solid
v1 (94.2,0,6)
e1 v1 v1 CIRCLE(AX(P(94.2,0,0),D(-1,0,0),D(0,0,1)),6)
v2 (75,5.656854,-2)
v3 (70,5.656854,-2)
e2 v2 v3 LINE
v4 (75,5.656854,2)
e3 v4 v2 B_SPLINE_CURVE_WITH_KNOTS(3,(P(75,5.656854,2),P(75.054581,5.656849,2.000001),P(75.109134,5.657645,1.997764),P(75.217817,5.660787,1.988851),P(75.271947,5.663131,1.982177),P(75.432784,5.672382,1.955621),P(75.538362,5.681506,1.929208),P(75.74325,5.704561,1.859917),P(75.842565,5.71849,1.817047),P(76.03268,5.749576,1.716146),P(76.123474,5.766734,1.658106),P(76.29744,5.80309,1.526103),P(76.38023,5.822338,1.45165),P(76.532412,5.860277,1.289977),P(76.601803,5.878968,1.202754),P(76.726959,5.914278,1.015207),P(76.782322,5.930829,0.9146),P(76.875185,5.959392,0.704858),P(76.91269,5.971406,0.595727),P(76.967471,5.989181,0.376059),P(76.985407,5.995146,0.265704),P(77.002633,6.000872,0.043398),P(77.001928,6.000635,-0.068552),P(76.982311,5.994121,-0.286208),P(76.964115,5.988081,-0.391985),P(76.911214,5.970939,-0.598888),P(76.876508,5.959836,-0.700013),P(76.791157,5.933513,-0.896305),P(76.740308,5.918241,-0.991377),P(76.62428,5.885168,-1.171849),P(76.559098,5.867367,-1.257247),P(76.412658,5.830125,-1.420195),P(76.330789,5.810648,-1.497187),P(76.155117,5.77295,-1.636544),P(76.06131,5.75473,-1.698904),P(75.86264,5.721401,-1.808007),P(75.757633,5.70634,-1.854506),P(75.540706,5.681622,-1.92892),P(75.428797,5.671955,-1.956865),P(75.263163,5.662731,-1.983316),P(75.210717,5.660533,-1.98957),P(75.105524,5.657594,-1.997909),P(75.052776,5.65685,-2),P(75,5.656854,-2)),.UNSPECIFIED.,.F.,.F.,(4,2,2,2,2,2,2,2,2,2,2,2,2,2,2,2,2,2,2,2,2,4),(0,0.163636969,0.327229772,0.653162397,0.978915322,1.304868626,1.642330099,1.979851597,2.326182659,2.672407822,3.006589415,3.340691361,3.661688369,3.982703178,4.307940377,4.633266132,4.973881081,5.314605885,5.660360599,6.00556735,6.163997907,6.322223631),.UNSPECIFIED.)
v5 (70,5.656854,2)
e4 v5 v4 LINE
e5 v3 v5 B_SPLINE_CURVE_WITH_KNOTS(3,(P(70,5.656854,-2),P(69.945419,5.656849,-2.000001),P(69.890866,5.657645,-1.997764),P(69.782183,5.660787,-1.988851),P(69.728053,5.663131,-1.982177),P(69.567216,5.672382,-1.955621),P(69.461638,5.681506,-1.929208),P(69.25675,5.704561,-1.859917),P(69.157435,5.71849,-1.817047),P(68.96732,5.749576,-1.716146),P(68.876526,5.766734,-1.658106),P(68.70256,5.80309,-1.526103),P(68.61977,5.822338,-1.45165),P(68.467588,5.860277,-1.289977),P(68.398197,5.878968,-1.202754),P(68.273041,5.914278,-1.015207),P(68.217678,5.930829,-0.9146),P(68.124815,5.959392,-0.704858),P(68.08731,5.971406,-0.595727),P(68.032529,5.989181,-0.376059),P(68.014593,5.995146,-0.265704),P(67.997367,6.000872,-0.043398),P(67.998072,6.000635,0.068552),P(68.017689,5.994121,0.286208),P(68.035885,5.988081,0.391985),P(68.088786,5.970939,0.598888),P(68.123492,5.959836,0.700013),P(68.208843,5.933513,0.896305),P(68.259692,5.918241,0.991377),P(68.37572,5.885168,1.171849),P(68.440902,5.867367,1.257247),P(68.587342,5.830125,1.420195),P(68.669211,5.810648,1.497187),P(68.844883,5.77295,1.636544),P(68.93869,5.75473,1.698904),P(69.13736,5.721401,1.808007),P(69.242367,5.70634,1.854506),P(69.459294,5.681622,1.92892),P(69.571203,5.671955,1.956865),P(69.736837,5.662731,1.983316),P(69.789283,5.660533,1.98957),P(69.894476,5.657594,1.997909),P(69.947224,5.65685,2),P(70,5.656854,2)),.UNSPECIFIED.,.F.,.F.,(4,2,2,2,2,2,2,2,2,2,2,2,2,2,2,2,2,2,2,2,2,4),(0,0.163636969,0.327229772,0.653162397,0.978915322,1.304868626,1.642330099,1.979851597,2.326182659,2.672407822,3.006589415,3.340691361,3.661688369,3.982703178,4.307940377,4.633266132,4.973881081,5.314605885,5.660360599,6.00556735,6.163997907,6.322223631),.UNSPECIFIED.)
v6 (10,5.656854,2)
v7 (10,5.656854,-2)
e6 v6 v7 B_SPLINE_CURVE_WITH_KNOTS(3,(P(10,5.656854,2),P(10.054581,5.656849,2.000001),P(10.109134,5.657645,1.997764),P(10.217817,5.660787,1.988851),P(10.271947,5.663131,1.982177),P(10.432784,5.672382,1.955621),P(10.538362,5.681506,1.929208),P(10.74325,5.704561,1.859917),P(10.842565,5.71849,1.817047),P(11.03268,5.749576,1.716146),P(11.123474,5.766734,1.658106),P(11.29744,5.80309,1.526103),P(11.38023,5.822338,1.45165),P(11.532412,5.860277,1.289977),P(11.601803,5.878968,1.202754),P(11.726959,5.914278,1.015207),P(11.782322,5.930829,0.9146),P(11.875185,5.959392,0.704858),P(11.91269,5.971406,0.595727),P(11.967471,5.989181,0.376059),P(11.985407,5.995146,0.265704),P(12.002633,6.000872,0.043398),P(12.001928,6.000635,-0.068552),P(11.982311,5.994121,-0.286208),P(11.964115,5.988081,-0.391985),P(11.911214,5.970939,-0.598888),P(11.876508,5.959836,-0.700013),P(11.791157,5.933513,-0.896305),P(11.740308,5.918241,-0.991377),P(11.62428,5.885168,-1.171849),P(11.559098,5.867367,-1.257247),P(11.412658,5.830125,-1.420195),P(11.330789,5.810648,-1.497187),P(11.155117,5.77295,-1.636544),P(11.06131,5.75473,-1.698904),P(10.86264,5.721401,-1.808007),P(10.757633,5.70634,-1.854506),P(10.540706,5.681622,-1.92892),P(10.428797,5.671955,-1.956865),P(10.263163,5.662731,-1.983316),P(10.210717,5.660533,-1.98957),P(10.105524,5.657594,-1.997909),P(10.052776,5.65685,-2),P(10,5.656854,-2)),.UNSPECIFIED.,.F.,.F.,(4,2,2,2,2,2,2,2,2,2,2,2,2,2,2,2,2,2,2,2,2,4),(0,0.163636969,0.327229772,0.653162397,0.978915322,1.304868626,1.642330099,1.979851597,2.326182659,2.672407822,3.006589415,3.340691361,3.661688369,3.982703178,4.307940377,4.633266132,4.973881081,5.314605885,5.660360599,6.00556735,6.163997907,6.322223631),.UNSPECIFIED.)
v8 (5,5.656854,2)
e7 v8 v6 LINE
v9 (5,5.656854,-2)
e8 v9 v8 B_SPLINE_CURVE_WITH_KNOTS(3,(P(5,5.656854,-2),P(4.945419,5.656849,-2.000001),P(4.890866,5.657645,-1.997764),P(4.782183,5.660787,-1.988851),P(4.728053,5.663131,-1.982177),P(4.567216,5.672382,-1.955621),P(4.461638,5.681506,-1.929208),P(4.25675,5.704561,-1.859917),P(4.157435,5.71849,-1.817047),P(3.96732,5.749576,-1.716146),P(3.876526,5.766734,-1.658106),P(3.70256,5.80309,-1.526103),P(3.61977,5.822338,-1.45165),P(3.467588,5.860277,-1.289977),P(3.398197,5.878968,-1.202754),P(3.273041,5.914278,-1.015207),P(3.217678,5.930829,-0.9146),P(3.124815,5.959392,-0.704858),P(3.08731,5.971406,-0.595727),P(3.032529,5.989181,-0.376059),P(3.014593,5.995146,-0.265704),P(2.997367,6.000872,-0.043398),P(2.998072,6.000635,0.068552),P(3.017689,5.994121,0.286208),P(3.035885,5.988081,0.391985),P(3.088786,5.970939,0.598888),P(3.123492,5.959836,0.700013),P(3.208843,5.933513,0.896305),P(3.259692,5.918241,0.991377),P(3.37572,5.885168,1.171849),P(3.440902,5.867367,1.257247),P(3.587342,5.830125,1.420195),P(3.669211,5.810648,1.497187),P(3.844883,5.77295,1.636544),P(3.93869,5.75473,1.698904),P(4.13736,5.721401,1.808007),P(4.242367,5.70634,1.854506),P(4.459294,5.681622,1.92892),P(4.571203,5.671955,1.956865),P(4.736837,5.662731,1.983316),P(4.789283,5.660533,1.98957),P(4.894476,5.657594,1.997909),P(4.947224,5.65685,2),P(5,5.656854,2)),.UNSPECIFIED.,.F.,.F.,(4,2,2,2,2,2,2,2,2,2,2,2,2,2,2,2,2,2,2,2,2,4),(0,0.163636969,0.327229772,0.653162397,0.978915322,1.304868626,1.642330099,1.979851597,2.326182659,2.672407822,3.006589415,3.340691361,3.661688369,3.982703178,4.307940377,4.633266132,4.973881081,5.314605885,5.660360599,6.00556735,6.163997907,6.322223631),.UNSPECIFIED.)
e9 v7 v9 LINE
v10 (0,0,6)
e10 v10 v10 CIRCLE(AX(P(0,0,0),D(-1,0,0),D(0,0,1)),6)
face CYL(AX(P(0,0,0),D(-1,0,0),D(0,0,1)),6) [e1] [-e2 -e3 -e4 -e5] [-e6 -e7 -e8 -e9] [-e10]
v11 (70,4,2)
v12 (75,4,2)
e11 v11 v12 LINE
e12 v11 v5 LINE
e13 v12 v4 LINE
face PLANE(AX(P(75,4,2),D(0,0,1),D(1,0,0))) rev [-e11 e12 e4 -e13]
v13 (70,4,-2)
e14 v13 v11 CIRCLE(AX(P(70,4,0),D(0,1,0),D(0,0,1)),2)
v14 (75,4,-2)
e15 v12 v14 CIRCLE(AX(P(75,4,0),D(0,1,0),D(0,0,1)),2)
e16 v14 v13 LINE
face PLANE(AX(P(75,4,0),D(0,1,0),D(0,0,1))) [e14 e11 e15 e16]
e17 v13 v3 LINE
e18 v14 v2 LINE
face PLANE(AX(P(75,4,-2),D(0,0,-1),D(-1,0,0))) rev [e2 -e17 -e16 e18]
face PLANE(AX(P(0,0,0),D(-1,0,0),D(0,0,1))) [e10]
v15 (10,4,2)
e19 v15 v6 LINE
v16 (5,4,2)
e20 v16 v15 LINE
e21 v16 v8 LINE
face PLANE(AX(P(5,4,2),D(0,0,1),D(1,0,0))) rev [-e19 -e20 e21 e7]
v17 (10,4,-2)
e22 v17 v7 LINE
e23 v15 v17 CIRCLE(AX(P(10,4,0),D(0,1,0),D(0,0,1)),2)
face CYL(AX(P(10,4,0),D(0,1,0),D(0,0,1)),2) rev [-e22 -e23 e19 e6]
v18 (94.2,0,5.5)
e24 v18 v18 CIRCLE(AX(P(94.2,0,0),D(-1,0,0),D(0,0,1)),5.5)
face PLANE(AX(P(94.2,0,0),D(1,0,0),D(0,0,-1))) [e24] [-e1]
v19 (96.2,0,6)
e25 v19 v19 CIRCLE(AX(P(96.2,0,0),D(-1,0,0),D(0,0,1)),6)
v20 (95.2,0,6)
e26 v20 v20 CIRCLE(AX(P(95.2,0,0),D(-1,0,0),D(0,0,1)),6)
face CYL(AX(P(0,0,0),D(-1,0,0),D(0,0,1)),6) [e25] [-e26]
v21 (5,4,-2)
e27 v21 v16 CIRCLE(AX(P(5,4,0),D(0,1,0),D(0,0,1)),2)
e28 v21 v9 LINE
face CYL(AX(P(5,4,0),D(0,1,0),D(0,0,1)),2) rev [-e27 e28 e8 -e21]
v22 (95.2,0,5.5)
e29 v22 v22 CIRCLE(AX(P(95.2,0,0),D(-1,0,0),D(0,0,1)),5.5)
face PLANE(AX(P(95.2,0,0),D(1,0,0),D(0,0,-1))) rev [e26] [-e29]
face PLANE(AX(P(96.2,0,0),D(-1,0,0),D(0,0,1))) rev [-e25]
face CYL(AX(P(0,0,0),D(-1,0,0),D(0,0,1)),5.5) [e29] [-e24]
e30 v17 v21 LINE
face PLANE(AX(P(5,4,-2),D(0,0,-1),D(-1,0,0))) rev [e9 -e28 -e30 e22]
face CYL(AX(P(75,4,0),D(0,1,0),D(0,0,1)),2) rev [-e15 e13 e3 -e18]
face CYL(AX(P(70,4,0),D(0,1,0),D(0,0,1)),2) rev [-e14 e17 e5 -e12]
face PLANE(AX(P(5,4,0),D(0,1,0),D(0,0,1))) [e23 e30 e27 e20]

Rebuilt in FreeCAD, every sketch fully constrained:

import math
import FreeCAD as App
import Part
import Sketcher

V = App.Vector


def add_polygon(sketch, points):
    """Adds a closed chain of lines whose ends are joined by coincident constraints."""
    first, n = sketch.GeometryCount, len(points)
    for a, b in zip(points, points[1:] + points[:1]):
        sketch.addGeometry(Part.LineSegment(App.Vector(*a, 0), App.Vector(*b, 0)), False)
    for i in range(n):
        sketch.addConstraint(Sketcher.Constraint("Coincident", first + i, 2, first + (i + 1) % n, 1))

doc = App.newDocument("Part")
body = doc.addObject("PartDesign::Body", "Body")

# Sketch on XY plane
sketch1 = doc.addObject("Sketcher::SketchObject", "Sketch")
body.addObject(sketch1)
sketch1.AttachmentSupport = (doc.XY_Plane, [""])
sketch1.MapMode = "FlatFace"
add_polygon(sketch1, [(0, 6), (0, 0), (96.2, 0), (96.2, 6), (95.2, 6), (95.2, 5.5), (94.2, 5.5), (94.2, 6)])  # lines 0-7
sketch1.addConstraint(Sketcher.Constraint("Vertical", 0))
sketch1.addConstraint(Sketcher.Constraint("Horizontal", 1))
sketch1.addConstraint(Sketcher.Constraint("Vertical", 2))
sketch1.addConstraint(Sketcher.Constraint("Horizontal", 3))
sketch1.addConstraint(Sketcher.Constraint("Vertical", 4))
sketch1.addConstraint(Sketcher.Constraint("Horizontal", 5))
sketch1.addConstraint(Sketcher.Constraint("Vertical", 6))
sketch1.addConstraint(Sketcher.Constraint("Horizontal", 7))
sketch1.addConstraint(Sketcher.Constraint("Coincident", 0, 2, -1, 1))
sketch1.addConstraint(Sketcher.Constraint("Horizontal", 3, 2, 6, 2))
sketch1.addConstraint(Sketcher.Constraint("Equal", 3, 5))
sketch1.addConstraint(Sketcher.Constraint("DistanceX", 3, 2, 3, 1, 1.0))
sketch1.addConstraint(Sketcher.Constraint("DistanceY", 0, 2, 0, 1, 6.0))
sketch1.addConstraint(Sketcher.Constraint("DistanceX", 1, 1, 1, 2, 96.2))
sketch1.addConstraint(Sketcher.Constraint("DistanceY", 4, 2, 4, 1, 0.5))
revolution = doc.addObject("PartDesign::Revolution", "Revolution")
body.addObject(revolution)
revolution.Profile = sketch1
revolution.ReferenceAxis = (sketch1, ["H_Axis"])
revolution.Angle = 360

# Sketch on XZ plane
sketch2 = doc.addObject("Sketcher::SketchObject", "Sketch001")
body.addObject(sketch2)
sketch2.AttachmentSupport = (doc.XZ_Plane, [""])
sketch2.MapMode = "FlatFace"
sketch2.AttachmentOffset = App.Placement(V(0, 0, -6), App.Rotation())
sketch2.addGeometry(Part.LineSegment(V(10, -2, 0), V(5, -2, 0)), False)
sketch2.addGeometry(Part.ArcOfCircle(Part.Circle(V(5, 0, 0), V(0, 0, 1), 2), math.radians(90), math.radians(270)), False)
sketch2.addGeometry(Part.LineSegment(V(5, 2, 0), V(10, 2, 0)), False)
sketch2.addGeometry(Part.ArcOfCircle(Part.Circle(V(10, 0, 0), V(0, 0, 1), 2), math.radians(-90), math.radians(90)), False)
sketch2.addGeometry(Part.LineSegment(V(70, 2, 0), V(75, 2, 0)), False)
sketch2.addGeometry(Part.ArcOfCircle(Part.Circle(V(75, 0, 0), V(0, 0, 1), 2), math.radians(-90), math.radians(90)), False)
sketch2.addGeometry(Part.LineSegment(V(75, -2, 0), V(70, -2, 0)), False)
sketch2.addGeometry(Part.ArcOfCircle(Part.Circle(V(70, 0, 0), V(0, 0, 1), 2), math.radians(90), math.radians(270)), False)
sketch2.addConstraint(Sketcher.Constraint("Tangent", 0, 2, 1, 2))
sketch2.addConstraint(Sketcher.Constraint("Tangent", 1, 1, 2, 1))
sketch2.addConstraint(Sketcher.Constraint("Tangent", 2, 2, 3, 2))
sketch2.addConstraint(Sketcher.Constraint("Tangent", 3, 1, 0, 1))
sketch2.addConstraint(Sketcher.Constraint("Tangent", 4, 2, 5, 2))
sketch2.addConstraint(Sketcher.Constraint("Tangent", 5, 1, 6, 1))
sketch2.addConstraint(Sketcher.Constraint("Tangent", 6, 2, 7, 2))
sketch2.addConstraint(Sketcher.Constraint("Tangent", 7, 1, 4, 1))
sketch2.addConstraint(Sketcher.Constraint("Horizontal", 0))
sketch2.addConstraint(Sketcher.Constraint("Horizontal", 2))
sketch2.addConstraint(Sketcher.Constraint("Horizontal", 4))
sketch2.addConstraint(Sketcher.Constraint("Horizontal", 6))
sketch2.addConstraint(Sketcher.Constraint("Equal", 3, 5))
sketch2.addConstraint(Sketcher.Constraint("PointOnObject", 1, 3, -1))
sketch2.addConstraint(Sketcher.Constraint("PointOnObject", 5, 3, -1))
sketch2.addConstraint(Sketcher.Constraint("Equal", 2, 4))
sketch2.addConstraint(Sketcher.Constraint("Radius", 1, 2.0))
sketch2.addConstraint(Sketcher.Constraint("DistanceX", 0, 2, 0, 1, 5.0))
sketch2.addConstraint(Sketcher.Constraint("DistanceX", -1, 1, 1, 3, 5.0))
sketch2.addConstraint(Sketcher.Constraint("DistanceX", -1, 1, 5, 3, 75.0))
pocket1 = doc.addObject("PartDesign::Pocket", "Pocket")
body.addObject(pocket1)
pocket1.Profile = sketch2
pocket1.Length = 2
pocket1.Reversed = True

doc.recompute()
